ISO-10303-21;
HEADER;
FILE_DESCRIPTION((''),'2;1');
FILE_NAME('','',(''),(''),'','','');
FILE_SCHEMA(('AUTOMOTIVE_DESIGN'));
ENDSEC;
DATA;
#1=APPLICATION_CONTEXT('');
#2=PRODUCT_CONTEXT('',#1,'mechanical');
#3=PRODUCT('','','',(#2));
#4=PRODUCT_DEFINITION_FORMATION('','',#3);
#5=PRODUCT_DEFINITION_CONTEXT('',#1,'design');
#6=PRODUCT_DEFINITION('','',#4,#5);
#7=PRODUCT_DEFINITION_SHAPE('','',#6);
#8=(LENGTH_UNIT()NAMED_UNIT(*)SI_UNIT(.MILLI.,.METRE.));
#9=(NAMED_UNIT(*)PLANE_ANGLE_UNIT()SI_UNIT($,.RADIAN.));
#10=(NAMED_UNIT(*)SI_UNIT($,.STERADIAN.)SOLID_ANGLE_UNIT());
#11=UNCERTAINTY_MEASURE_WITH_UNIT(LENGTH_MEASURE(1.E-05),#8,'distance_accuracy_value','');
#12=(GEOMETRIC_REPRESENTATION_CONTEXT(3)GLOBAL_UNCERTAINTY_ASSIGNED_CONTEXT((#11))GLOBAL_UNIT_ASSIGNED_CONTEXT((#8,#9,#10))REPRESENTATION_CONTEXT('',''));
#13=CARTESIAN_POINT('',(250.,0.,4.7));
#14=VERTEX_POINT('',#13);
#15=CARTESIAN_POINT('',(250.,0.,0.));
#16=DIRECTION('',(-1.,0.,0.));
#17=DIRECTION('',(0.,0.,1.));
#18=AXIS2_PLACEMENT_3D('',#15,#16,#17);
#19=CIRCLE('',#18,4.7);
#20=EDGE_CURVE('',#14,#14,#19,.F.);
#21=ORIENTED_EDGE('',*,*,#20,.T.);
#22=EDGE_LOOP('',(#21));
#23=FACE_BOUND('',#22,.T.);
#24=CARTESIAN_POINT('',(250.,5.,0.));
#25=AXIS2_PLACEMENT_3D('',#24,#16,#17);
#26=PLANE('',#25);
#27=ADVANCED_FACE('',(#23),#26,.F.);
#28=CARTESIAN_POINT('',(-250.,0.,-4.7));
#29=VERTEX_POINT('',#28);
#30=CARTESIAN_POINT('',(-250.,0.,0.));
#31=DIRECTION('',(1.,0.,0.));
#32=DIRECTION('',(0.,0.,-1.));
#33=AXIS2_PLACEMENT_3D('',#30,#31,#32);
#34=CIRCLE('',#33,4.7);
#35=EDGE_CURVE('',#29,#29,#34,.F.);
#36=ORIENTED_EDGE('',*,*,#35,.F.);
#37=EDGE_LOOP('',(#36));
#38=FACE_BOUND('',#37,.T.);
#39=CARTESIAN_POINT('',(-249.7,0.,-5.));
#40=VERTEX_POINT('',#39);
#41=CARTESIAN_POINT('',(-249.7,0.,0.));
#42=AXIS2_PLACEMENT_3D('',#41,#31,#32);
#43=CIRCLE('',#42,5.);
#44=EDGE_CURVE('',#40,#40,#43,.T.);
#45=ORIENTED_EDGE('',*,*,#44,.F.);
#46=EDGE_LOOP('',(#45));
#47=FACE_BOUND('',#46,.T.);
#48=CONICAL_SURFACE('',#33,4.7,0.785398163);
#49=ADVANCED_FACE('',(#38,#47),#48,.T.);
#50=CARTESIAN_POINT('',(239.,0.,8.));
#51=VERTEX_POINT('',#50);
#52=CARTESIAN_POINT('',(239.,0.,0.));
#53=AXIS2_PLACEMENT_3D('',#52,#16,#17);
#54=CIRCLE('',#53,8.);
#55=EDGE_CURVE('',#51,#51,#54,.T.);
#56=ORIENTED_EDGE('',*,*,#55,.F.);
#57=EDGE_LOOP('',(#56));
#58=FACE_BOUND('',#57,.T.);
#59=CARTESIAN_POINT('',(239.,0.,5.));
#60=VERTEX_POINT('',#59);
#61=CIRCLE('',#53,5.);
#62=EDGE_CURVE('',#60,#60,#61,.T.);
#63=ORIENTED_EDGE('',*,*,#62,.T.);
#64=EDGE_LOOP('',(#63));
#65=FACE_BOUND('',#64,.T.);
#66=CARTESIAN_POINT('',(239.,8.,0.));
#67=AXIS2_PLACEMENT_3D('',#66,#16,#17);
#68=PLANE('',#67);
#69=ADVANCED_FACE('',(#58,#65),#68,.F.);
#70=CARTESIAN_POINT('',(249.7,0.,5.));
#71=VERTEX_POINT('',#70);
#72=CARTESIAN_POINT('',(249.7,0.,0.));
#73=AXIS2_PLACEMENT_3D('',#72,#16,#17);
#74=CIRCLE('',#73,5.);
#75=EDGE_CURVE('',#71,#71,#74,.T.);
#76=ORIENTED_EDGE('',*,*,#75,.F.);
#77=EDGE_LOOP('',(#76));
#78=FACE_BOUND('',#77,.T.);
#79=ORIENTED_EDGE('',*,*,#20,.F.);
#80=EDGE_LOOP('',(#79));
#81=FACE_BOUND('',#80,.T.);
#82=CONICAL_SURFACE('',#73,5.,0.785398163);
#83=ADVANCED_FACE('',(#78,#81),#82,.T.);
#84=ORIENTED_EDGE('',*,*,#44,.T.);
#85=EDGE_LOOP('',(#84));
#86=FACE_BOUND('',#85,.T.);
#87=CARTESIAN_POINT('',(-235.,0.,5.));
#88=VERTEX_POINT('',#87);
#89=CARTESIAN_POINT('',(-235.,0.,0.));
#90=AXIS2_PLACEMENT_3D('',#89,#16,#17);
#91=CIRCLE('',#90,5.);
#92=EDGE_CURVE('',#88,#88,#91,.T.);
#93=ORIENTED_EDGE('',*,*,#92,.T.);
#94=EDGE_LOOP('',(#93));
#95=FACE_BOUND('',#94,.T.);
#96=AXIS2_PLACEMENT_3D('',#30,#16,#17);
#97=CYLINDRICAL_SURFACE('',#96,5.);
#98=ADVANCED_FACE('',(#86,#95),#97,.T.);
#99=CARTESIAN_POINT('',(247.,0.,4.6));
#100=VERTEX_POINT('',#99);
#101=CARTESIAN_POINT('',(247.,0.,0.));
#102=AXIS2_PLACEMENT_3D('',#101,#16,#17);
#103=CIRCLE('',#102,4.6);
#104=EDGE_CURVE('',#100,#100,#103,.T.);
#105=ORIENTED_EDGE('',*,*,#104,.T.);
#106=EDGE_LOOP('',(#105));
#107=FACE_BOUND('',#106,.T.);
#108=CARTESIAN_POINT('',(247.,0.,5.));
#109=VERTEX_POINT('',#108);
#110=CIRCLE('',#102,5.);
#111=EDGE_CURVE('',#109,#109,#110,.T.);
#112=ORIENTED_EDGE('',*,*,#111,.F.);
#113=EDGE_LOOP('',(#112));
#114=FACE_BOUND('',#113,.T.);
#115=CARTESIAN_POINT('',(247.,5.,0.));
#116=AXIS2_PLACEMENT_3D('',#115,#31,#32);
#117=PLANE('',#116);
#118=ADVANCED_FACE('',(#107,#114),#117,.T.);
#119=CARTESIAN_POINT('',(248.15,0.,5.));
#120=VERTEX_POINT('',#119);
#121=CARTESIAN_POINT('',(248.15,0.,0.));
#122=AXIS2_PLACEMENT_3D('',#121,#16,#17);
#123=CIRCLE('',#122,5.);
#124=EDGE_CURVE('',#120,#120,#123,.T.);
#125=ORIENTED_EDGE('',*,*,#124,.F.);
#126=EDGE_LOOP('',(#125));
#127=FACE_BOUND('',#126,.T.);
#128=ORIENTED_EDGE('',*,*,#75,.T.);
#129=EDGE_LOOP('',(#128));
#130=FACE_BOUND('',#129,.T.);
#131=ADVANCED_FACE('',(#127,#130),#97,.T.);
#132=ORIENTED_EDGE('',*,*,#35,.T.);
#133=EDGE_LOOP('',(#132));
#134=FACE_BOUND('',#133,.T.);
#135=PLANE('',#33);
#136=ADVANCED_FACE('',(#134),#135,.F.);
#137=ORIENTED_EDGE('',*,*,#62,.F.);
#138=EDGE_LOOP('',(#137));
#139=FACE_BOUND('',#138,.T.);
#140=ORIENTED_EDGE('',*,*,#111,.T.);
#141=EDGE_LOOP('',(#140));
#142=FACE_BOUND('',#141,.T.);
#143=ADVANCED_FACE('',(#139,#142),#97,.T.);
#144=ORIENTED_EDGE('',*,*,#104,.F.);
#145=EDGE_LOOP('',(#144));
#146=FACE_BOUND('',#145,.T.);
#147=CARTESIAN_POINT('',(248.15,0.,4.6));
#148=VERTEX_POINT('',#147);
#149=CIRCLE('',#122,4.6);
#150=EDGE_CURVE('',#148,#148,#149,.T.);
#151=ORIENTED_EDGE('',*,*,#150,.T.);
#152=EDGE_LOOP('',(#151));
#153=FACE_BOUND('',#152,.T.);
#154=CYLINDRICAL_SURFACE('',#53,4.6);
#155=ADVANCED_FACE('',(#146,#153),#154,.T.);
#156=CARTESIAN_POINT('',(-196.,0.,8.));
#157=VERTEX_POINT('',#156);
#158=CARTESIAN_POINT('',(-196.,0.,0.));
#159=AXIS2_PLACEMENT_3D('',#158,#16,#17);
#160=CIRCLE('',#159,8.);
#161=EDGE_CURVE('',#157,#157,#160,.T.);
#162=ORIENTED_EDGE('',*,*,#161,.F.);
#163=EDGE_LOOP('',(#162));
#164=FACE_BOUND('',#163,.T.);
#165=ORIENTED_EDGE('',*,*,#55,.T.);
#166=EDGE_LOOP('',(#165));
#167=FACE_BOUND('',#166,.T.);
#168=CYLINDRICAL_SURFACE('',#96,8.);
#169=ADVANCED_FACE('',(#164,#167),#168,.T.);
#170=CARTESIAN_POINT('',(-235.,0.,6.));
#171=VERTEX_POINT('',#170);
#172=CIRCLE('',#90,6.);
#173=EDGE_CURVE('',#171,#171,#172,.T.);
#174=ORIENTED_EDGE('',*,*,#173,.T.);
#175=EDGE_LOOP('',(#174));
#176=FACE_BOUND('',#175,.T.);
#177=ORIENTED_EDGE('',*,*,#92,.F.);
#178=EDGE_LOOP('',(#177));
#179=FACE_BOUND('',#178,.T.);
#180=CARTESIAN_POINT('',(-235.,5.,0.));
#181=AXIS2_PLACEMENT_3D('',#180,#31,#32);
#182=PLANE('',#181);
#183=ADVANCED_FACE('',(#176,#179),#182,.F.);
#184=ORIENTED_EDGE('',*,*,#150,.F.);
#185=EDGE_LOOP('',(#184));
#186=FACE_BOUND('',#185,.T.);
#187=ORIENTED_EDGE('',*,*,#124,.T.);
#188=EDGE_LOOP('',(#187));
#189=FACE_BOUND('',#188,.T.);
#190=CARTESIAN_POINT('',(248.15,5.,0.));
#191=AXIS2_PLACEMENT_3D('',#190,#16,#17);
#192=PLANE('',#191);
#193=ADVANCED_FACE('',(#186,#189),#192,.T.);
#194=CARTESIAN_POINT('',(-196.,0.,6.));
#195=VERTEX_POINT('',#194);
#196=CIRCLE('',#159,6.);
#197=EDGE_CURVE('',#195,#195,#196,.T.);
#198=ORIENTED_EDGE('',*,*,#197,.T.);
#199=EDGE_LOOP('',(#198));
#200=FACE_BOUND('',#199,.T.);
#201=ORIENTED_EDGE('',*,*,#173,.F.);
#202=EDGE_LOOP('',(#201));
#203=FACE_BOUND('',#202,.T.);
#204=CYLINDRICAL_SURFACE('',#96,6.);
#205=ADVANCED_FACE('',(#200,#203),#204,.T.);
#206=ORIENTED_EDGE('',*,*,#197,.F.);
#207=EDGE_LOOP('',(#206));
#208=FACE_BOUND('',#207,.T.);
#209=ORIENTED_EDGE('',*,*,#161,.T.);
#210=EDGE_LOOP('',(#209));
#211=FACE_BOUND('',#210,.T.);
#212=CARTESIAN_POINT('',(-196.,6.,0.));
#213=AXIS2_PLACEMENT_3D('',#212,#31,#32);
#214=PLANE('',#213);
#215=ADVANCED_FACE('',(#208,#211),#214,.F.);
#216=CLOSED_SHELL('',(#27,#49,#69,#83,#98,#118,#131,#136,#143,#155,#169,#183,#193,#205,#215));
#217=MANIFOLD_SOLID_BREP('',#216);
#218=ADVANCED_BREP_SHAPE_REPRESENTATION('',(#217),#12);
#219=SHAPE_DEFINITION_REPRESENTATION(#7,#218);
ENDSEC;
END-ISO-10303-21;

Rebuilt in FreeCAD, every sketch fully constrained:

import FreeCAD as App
import Part
import Sketcher

V = App.Vector


def edges_at(feature, points):
    """Names of the edges that pass closest to the given points."""
    edges = feature.Shape.Edges
    near = lambda p: min(range(len(edges)), key=lambda i: edges[i].distToShape(Part.Vertex(*p))[0])
    return sorted({f"Edge{near(p) + 1}" for p in points})


def add_polygon(sketch, points):
    """Adds a closed chain of lines whose ends are joined by coincident constraints."""
    first, n = sketch.GeometryCount, len(points)
    for a, b in zip(points, points[1:] + points[:1]):
        sketch.addGeometry(Part.LineSegment(App.Vector(*a, 0), App.Vector(*b, 0)), False)
    for i in range(n):
        sketch.addConstraint(Sketcher.Constraint("Coincident", first + i, 2, first + (i + 1) % n, 1))

doc = App.newDocument("Part")
body = doc.addObject("PartDesign::Body", "Body")

sketch1 = doc.addObject("Sketcher::SketchObject", "Sketch")
body.addObject(sketch1)
sketch1.AttachmentSupport = (doc.XY_Plane, [""])
sketch1.MapMode = "FlatFace"
add_polygon(sketch1, [(-250, 0), (250, 0), (250, 5), (239, 5), (239, 8), (-196, 8), (-196, 6), (-235, 6), (-235, 5), (-250, 5)])
sketch1.addConstraint(Sketcher.Constraint("Horizontal", 0))
sketch1.addConstraint(Sketcher.Constraint("Vertical", 1))
sketch1.addConstraint(Sketcher.Constraint("Horizontal", 2))
sketch1.addConstraint(Sketcher.Constraint("Vertical", 3))
sketch1.addConstraint(Sketcher.Constraint("Horizontal", 4))
sketch1.addConstraint(Sketcher.Constraint("Vertical", 5))
sketch1.addConstraint(Sketcher.Constraint("Horizontal", 6))
sketch1.addConstraint(Sketcher.Constraint("Vertical", 7))
sketch1.addConstraint(Sketcher.Constraint("Horizontal", 8))
sketch1.addConstraint(Sketcher.Constraint("Vertical", 9))
sketch1.addConstraint(Sketcher.Constraint("Symmetric", 0, 2, 9, 2, -1, 1))
sketch1.addConstraint(Sketcher.Constraint("Horizontal", 2, 2, 7, 2))
sketch1.addConstraint(Sketcher.Constraint("DistanceX", 0, 1, 0, 2, 500.0))
sketch1.addConstraint(Sketcher.Constraint("DistanceX", 2, 2, 2, 1, 11.0))
sketch1.addConstraint(Sketcher.Constraint("DistanceX", 4, 2, 4, 1, 435.0))
sketch1.addConstraint(Sketcher.Constraint("DistanceX", 6, 2, 6, 1, 39.0))
sketch1.addConstraint(Sketcher.Constraint("DistanceY", 1, 1, 1, 2, 5.0))
sketch1.addConstraint(Sketcher.Constraint("DistanceY", 3, 1, 3, 2, 3.0))
sketch1.addConstraint(Sketcher.Constraint("DistanceY", 5, 2, 5, 1, 2.0))
revolution = doc.addObject("PartDesign::Revolution", "Revolution")
body.addObject(revolution)
revolution.Profile = sketch1
revolution.ReferenceAxis = (sketch1, ["H_Axis"])
revolution.Angle = 360

sketch2 = doc.addObject("Sketcher::SketchObject", "Sketch001")
body.addObject(sketch2)
sketch2.AttachmentSupport = (doc.XY_Plane, [""])
sketch2.MapMode = "FlatFace"
add_polygon(sketch2, [(247, 5), (247, 4.6), (248.15, 4.6), (248.15, 5)])
sketch2.addConstraint(Sketcher.Constraint("Vertical", 0))
sketch2.addConstraint(Sketcher.Constraint("Horizontal", 1))
sketch2.addConstraint(Sketcher.Constraint("Vertical", 2))
sketch2.addConstraint(Sketcher.Constraint("Horizontal", 3))
sketch2.addConstraint(Sketcher.Constraint("DistanceY", 0, 2, 0, 1, 0.4))
sketch2.addConstraint(Sketcher.Constraint("DistanceX", -1, 1, 0, 2, 247.0))
sketch2.addConstraint(Sketcher.Constraint("DistanceY", -1, 1, 2, 2, 5.0))
sketch2.addConstraint(Sketcher.Constraint("DistanceX", 1, 1, 1, 2, 1.15))
groove = doc.addObject("PartDesign::Groove", "Groove")
body.addObject(groove)
groove.Profile = sketch2
groove.ReferenceAxis = (sketch2, ["H_Axis"])
groove.Angle = 360
doc.recompute()

chamfer = doc.addObject("PartDesign::Chamfer", "Chamfer")
body.addObject(chamfer)
chamfer.Base = (groove, edges_at(groove, [(-250, 0, -5), (250, 0, -5)]))
chamfer.Size = 0.3

doc.recompute()
